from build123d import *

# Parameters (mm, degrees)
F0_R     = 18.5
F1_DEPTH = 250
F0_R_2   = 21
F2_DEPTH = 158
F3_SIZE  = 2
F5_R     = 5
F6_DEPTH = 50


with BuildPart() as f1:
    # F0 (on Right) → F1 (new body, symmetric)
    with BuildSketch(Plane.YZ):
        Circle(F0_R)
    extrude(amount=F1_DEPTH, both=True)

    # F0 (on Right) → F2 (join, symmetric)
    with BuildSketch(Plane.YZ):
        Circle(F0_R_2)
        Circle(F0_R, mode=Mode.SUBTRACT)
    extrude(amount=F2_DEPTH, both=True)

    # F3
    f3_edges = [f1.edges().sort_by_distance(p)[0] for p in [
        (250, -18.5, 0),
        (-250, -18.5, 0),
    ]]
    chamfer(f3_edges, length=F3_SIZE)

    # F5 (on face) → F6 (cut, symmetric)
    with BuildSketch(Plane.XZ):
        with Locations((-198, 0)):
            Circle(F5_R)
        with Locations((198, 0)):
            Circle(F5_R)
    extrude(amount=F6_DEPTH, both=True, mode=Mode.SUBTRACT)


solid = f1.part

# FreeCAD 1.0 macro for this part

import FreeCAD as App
import Part
import Sketcher
from FreeCAD import Vector


def edges_at(feature, points):
    """Names of the edges that pass closest to the given points."""
    edges = feature.Shape.Edges
    near = lambda p: min(range(len(edges)), key=lambda i: edges[i].distToShape(Part.Vertex(*p))[0])
    return sorted({f"Edge{near(p) + 1}" for p in points})

doc = App.newDocument("Part")
params = doc.addObject("Spreadsheet::Sheet", "Params")
for row, (alias, value) in enumerate([
    ("sketch1_diameter", "37 mm"),
    ("pad1_length", "500 mm"),
    ("sketch2_diameter", "42 mm"),
    ("sketch2_diameter2", "37 mm"),
    ("pad2_length", "316 mm"),
    ("chamfer_size", "2 mm"),
    ("sketch3_diameter", "10 mm"),
    ("pocket1_length", "100 mm"),
], start=1):
    params.set(f"A{row}", alias)
    params.set(f"B{row}", "=" + value)
    params.setAlias(f"B{row}", alias)

body = doc.addObject("PartDesign::Body", "Body")

# Sketch on YZ plane
sketch1 = doc.addObject("Sketcher::SketchObject", "Sketch")
body.addObject(sketch1)
sketch1.AttachmentSupport = (doc.YZ_Plane, [""])
sketch1.MapMode = "FlatFace"
sketch1.addGeometry(Part.Circle(Vector(0, 0, 0), Vector(0, 0, 1), 18), False)
sketch1.addConstraint(Sketcher.Constraint("Coincident", 0, 3, -1, 1))
sketch1.addConstraint(Sketcher.Constraint("Diameter", 0, 37.0))
sketch1.setExpression("Constraints[1]", "Params.sketch1_diameter")
pad1 = doc.addObject("PartDesign::Pad", "Pad")
body.addObject(pad1)
pad1.Profile = sketch1
pad1.setExpression("Length", "Params.pad1_length")
pad1.Midplane = True

# Sketch on YZ plane
sketch2 = doc.addObject("Sketcher::SketchObject", "Sketch001")
body.addObject(sketch2)
sketch2.AttachmentSupport = (doc.YZ_Plane, [""])
sketch2.MapMode = "FlatFace"
sketch2.addGeometry(Part.Circle(Vector(0, 0, 0), Vector(0, 0, 1), 21), False)
sketch2.addGeometry(Part.Circle(Vector(0, 0, 0), Vector(0, 0, 1), 18), False)
sketch2.addConstraint(Sketcher.Constraint("Coincident", 0, 3, -1, 1))
sketch2.addConstraint(Sketcher.Constraint("Coincident", 1, 3, -1, 1))
sketch2.addConstraint(Sketcher.Constraint("Diameter", 0, 42.0))
sketch2.addConstraint(Sketcher.Constraint("Diameter", 1, 37.0))
sketch2.setExpression("Constraints[2]", "Params.sketch2_diameter")
sketch2.setExpression("Constraints[3]", "Params.sketch2_diameter2")
pad2 = doc.addObject("PartDesign::Pad", "Pad001")
body.addObject(pad2)
pad2.Profile = sketch2
pad2.setExpression("Length", "Params.pad2_length")
pad2.Midplane = True
doc.recompute()

chamfer = doc.addObject("PartDesign::Chamfer", "Chamfer")
body.addObject(chamfer)
chamfer.Base = (pad2, edges_at(pad2, [(250, -18.5, 0), (-250, -18.5, 0)]))
chamfer.setExpression("Size", "Params.chamfer_size")

# Sketch on XZ plane
sketch3 = doc.addObject("Sketcher::SketchObject", "Sketch002")
body.addObject(sketch3)
sketch3.AttachmentSupport = (doc.XZ_Plane, [""])
sketch3.MapMode = "FlatFace"
sketch3.addGeometry(Part.Circle(Vector(-198, 0, 0), Vector(0, 0, 1), 5), False)
sketch3.addGeometry(Part.Circle(Vector(198, 0, 0), Vector(0, 0, 1), 5), False)
sketch3.addConstraint(Sketcher.Constraint("Equal", 0, 1))
sketch3.addConstraint(Sketcher.Constraint("Symmetric", 0, 3, 1, 3, -1, 1))
sketch3.addConstraint(Sketcher.Constraint("PointOnObject", 0, 3, -1))
sketch3.addConstraint(Sketcher.Constraint("Diameter", 0, 10.0))
sketch3.addConstraint(Sketcher.Constraint("DistanceX", 0, 3, -1, 1, 198.0))
sketch3.setExpression("Constraints[3]", "Params.sketch3_diameter")
pocket1 = doc.addObject("PartDesign::Pocket", "Pocket")
body.addObject(pocket1)
pocket1.Profile = sketch3
pocket1.setExpression("Length", "Params.pocket1_length")
pocket1.Midplane = True

doc.recompute()
